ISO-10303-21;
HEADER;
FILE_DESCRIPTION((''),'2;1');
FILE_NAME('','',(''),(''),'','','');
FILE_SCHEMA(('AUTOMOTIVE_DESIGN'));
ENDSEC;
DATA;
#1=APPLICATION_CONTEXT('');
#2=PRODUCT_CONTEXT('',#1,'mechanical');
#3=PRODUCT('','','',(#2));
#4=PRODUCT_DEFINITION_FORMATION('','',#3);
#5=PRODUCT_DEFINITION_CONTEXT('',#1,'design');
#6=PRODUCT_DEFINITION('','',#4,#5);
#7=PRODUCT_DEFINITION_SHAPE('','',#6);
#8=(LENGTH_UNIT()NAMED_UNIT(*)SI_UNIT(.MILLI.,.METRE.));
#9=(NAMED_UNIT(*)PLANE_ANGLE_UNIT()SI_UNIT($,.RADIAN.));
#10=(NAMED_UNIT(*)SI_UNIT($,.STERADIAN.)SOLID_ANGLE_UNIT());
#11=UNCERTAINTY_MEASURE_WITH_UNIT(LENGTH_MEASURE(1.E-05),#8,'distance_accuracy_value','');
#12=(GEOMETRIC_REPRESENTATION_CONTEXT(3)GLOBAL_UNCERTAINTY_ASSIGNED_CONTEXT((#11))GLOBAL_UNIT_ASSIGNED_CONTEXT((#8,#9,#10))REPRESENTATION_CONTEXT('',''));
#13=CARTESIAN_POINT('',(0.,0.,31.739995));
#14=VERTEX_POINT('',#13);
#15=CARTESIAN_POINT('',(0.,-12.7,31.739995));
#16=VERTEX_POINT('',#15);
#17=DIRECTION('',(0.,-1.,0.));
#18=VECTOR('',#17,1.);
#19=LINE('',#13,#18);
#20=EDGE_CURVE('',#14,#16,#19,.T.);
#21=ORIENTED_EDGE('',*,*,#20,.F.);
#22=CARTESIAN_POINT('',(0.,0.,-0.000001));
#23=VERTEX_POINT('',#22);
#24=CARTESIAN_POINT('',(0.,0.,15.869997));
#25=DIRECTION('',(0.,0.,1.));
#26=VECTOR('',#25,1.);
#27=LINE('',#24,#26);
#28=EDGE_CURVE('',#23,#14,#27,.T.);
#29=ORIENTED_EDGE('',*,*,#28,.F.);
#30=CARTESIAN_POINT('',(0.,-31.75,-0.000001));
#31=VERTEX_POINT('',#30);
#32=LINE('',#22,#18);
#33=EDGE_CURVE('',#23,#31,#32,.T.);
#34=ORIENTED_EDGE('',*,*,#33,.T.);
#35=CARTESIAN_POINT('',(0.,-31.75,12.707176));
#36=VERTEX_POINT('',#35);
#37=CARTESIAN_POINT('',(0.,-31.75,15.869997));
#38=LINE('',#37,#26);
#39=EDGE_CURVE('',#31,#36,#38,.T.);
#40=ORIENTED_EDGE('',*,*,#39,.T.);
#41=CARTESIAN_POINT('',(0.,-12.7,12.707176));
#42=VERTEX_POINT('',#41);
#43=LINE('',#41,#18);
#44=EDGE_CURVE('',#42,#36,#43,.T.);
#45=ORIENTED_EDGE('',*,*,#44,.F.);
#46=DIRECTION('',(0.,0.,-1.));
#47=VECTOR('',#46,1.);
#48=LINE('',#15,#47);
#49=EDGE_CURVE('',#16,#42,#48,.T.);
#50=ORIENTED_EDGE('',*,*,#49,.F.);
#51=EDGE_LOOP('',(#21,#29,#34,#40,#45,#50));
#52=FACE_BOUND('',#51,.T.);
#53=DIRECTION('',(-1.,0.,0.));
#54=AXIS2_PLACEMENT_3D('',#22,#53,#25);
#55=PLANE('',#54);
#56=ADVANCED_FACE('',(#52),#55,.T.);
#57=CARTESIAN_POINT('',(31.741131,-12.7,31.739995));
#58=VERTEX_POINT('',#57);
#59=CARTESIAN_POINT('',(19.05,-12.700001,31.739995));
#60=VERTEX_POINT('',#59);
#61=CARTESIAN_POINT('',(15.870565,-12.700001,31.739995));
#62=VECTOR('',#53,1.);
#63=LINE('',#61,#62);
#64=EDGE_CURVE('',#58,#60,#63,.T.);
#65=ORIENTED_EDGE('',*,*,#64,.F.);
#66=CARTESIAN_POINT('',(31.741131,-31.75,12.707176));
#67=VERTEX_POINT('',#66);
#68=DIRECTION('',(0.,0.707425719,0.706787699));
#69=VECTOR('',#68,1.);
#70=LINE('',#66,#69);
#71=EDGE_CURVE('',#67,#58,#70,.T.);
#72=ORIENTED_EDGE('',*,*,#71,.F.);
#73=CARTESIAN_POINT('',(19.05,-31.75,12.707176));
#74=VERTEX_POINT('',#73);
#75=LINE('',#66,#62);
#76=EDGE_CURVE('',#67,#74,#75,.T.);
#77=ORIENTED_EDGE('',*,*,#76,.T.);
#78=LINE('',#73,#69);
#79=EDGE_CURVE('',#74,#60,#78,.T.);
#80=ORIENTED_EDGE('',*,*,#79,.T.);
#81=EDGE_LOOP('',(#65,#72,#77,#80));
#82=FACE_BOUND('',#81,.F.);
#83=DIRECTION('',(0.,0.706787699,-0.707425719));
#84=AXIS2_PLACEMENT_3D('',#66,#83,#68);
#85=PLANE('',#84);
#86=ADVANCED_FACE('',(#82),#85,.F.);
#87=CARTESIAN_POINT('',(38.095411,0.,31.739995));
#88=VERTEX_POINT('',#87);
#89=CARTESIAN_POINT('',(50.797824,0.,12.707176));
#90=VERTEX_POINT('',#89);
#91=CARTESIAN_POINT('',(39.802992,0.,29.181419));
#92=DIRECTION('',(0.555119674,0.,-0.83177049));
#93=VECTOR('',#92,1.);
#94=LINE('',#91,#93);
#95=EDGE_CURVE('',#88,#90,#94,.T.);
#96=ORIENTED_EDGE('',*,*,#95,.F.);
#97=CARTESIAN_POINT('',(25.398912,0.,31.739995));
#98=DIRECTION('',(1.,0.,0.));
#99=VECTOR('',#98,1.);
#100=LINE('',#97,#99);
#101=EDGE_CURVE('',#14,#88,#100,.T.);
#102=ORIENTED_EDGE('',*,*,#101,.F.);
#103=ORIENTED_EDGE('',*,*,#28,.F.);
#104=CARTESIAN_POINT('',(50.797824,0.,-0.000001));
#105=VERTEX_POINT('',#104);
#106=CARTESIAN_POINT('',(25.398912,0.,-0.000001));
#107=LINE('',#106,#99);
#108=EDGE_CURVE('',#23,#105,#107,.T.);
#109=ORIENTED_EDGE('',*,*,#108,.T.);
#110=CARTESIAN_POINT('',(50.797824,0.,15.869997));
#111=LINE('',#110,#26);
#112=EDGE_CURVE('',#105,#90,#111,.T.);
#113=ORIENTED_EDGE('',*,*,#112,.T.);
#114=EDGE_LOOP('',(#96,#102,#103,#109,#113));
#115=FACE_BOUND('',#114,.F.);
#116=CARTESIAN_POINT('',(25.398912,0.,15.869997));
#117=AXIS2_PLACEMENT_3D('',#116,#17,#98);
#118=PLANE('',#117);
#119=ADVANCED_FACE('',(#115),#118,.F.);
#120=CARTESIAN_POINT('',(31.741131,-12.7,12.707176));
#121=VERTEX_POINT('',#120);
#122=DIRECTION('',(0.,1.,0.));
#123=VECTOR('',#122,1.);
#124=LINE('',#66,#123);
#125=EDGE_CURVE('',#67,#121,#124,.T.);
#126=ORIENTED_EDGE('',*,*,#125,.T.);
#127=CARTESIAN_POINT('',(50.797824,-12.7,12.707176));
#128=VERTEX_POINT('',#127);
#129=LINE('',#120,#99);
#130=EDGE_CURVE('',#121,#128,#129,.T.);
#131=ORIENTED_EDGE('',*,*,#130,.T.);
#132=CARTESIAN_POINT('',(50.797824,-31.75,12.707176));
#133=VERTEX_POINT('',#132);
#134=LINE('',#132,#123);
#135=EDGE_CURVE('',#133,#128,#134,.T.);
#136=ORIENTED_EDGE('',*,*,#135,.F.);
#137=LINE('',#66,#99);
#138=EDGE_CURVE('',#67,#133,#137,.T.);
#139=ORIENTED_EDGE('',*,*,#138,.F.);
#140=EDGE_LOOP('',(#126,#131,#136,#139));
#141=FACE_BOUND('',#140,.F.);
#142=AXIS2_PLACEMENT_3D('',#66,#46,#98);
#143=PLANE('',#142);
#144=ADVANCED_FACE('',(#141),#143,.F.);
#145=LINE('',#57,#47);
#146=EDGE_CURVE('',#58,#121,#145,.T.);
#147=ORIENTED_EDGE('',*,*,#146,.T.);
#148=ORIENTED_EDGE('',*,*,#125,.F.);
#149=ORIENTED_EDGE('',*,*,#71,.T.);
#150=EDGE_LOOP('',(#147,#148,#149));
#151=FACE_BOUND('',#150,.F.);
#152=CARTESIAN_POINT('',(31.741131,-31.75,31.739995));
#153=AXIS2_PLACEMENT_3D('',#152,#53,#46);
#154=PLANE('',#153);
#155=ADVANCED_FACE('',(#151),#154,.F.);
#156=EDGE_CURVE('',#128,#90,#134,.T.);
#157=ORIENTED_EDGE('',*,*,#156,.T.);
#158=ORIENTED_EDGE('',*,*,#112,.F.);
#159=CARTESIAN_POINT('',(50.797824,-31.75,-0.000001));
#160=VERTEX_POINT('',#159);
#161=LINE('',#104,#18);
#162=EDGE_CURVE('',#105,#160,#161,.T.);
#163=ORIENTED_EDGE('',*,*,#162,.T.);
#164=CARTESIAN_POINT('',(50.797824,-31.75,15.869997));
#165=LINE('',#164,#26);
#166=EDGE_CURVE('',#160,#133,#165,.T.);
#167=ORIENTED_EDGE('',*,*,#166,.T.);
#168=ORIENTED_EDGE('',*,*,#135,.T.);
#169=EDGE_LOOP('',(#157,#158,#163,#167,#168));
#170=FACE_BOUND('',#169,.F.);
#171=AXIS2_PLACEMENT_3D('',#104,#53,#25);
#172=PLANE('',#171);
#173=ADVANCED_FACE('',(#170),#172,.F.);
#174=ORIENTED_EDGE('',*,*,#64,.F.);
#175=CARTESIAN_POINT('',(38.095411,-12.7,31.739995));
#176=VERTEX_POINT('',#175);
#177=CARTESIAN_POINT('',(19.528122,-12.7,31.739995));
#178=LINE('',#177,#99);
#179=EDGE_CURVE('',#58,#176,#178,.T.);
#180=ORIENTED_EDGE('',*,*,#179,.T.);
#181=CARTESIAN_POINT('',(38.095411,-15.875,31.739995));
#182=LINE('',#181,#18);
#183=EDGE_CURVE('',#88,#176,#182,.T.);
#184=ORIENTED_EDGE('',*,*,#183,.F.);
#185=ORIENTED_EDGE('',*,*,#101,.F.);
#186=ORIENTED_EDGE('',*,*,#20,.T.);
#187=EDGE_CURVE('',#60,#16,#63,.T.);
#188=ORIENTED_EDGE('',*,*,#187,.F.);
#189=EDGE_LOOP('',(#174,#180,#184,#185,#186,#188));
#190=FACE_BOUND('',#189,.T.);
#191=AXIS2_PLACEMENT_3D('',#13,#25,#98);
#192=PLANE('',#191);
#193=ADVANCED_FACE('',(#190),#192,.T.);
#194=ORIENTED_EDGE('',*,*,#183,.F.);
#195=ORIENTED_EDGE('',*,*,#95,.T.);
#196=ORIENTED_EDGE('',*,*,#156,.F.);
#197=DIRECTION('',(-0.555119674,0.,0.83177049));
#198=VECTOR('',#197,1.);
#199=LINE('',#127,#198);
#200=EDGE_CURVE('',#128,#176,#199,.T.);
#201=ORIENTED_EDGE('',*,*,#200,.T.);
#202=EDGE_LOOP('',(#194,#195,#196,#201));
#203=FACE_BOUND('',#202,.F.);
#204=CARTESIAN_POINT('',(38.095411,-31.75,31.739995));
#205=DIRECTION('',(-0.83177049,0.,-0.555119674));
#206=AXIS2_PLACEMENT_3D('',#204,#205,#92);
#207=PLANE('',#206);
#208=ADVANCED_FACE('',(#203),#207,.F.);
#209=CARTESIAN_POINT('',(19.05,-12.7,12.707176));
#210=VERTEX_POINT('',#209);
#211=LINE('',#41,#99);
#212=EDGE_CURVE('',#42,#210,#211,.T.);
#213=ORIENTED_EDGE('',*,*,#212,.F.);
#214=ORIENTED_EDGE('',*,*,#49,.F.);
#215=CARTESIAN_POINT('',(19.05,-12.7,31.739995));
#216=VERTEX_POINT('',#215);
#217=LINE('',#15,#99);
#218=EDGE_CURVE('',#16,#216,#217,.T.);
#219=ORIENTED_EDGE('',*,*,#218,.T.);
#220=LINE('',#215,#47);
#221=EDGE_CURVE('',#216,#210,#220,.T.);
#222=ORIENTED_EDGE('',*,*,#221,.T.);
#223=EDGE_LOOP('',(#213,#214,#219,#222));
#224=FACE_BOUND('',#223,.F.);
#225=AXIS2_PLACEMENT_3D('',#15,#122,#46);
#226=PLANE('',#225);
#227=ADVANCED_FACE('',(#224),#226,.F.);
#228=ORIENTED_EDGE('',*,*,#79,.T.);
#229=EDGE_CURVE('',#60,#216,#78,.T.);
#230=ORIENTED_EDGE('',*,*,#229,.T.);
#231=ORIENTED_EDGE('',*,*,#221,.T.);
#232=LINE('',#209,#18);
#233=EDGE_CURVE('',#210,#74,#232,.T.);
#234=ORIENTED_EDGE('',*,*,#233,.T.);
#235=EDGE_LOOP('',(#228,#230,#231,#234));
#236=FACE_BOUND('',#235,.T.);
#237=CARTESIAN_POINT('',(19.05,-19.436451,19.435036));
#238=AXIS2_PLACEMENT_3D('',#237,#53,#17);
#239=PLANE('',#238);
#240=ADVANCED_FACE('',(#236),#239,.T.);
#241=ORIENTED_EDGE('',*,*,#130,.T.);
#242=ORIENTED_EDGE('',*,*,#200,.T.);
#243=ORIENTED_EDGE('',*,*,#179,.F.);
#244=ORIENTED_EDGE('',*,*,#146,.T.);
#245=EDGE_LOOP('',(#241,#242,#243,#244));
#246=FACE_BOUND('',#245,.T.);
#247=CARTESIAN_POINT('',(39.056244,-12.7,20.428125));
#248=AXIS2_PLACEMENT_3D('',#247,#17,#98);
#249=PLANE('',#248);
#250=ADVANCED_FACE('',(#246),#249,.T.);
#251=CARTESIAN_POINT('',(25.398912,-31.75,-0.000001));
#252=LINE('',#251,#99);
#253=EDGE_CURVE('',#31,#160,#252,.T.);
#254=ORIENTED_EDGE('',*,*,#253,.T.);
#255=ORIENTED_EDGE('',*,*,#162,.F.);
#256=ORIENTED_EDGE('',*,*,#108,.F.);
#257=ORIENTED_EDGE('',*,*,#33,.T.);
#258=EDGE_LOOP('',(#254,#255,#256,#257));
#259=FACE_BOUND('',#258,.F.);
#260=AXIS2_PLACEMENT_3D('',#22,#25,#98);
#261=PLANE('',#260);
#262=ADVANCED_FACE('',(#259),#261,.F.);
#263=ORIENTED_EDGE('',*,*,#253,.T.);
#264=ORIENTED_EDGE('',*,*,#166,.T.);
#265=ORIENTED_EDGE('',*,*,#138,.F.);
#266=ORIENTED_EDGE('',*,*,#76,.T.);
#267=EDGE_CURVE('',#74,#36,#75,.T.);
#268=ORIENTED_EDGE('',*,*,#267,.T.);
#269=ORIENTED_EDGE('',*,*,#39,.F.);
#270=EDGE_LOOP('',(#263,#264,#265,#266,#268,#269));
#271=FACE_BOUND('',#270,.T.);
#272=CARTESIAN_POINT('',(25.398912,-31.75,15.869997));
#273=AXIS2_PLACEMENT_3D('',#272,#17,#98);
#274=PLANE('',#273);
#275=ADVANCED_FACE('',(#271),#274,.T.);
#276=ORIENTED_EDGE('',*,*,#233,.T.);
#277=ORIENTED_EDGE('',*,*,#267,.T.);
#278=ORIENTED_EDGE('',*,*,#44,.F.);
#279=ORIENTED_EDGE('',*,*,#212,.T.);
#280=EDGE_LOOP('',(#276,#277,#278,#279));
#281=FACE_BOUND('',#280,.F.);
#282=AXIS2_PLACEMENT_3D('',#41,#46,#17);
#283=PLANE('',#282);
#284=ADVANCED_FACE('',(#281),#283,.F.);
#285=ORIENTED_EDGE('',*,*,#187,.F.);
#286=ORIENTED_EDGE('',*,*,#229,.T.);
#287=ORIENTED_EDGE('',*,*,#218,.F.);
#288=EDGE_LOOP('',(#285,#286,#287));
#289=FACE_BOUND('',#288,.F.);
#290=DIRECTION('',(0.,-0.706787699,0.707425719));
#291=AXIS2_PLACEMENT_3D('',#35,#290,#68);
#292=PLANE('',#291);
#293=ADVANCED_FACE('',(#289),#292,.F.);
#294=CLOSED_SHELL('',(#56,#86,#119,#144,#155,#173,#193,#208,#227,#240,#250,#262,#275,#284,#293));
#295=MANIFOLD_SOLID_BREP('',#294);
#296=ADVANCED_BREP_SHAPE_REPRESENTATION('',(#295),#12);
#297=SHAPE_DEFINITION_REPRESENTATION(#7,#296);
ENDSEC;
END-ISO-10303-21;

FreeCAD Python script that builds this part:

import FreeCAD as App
import Part
import Sketcher
from FreeCAD import Vector
Q = App.Units.Quantity


def add_polygon(sketch, points):
    """Adds a closed chain of lines whose ends are joined by coincident constraints."""
    first, n = sketch.GeometryCount, len(points)
    for a, b in zip(points, points[1:] + points[:1]):
        sketch.addGeometry(Part.LineSegment(App.Vector(*a, 0), App.Vector(*b, 0)), False)
    for i in range(n):
        sketch.addConstraint(Sketcher.Constraint("Coincident", first + i, 2, first + (i + 1) % n, 1))

doc = App.newDocument("Part")
params = doc.addObject("Spreadsheet::Sheet", "Params")
for row, (alias, value) in enumerate([
    ("pad1_length", "1.25 in"),
    ("pocket2_length", "0.75 in"),
    ("sketch4_width", "0.75 in"),
    ("sketch5_width", "0.75 in"),
    ("pocket4_length", "0.75 in"),
], start=1):
    params.set(f"A{row}", alias)
    params.set(f"B{row}", "=" + value)
    params.setAlias(f"B{row}", alias)

body = doc.addObject("PartDesign::Body", "Body")

# Sketch on XZ plane
sketch1 = body.newObject("Sketcher::SketchObject", "Sketch")
sketch1.AttachmentSupport = (doc.getObject("XZ_Plane"), [""])
sketch1.MapMode = "FlatFace"
add_polygon(sketch1, [(0, 32), (0, 0), (51, 0), (51, 32)])  # lines 0-3
sketch1.addConstraint([
    Sketcher.Constraint("Vertical", 0),
    Sketcher.Constraint("Horizontal", 1),
    Sketcher.Constraint("Vertical", 2),
    Sketcher.Constraint("Horizontal", 3),
    Sketcher.Constraint("Coincident", 0, 2, -1, 1),
    Sketcher.Constraint("DistanceX", 1, 1, 1, 2, Q("50.797824 mm")),
    Sketcher.Constraint("DistanceY", 0, 2, 0, 1, Q("31.739995 mm")),
])
pad1 = body.newObject("PartDesign::Pad", "Pad")
pad1.Profile = sketch1
pad1.setExpression("Length", "Params.pad1_length")

# Sketch on XZ plane
sketch2 = body.newObject("Sketcher::SketchObject", "Sketch001")
sketch2.AttachmentSupport = (doc.getObject("XZ_Plane"), [""])
sketch2.MapMode = "FlatFace"
sketch2.AttachmentOffset = App.Placement(Vector(0, 0, 1.25 * 25.4), App.Rotation())
add_polygon(sketch2, [(51, 32), (38, 32), (51, 13)])  # lines 0-2
sketch2.addConstraint([
    Sketcher.Constraint("Horizontal", 0),
    Sketcher.Constraint("Vertical", 2),
    Sketcher.Constraint("DistanceY", 2, 1, 2, 2, Q("19.032819 mm")),
    Sketcher.Constraint("DistanceX", 0, 2, 0, 1, Q("12.702413 mm")),
    Sketcher.Constraint("DistanceX", -1, 1, 0, 2, Q("38.095411 mm")),
    Sketcher.Constraint("DistanceY", -1, 1, 0, 2, Q("31.739995 mm")),
])
pocket1 = body.newObject("PartDesign::Pocket", "Pocket")
pocket1.Profile = sketch2
pocket1.Type = "ThroughAll"

# Sketch on XZ plane
sketch3 = body.newObject("Sketcher::SketchObject", "Sketch002")
sketch3.AttachmentSupport = (doc.getObject("XZ_Plane"), [""])
sketch3.MapMode = "FlatFace"
sketch3.AttachmentOffset = App.Placement(Vector(0, 0, 1.25 * 25.4), App.Rotation())
add_polygon(sketch3, [(32, 13), (51, 13), (38, 32), (32, 32)])  # lines 0-3
sketch3.addConstraint([
    Sketcher.Constraint("Horizontal", 0),
    Sketcher.Constraint("Horizontal", 2),
    Sketcher.Constraint("Vertical", 3),
    Sketcher.Constraint("DistanceX", 2, 2, 2, 1, Q("6.35428 mm")),
    Sketcher.Constraint("DistanceY", 3, 2, 3, 1, Q("19.032819 mm")),
    Sketcher.Constraint("DistanceX", 0, 1, 0, 2, Q("19.056693 mm")),
    Sketcher.Constraint("DistanceX", -1, 1, 1, 2, Q("38.095411 mm")),
    Sketcher.Constraint("DistanceY", -1, 1, 0, 2, Q("12.707176 mm")),
])
pocket2 = body.newObject("PartDesign::Pocket", "Pocket001")
pocket2.Profile = sketch3
pocket2.setExpression("Length", "Params.pocket2_length")

# Sketch on YZ plane
sketch4 = body.newObject("Sketcher::SketchObject", "Sketch003")
sketch4.AttachmentSupport = (doc.getObject("YZ_Plane"), [""])
sketch4.MapMode = "FlatFace"
sketch4.AttachmentOffset = App.Placement(Vector(0, 0, 31.741131), App.Rotation())
add_polygon(sketch4, [(-32, 13), (-13, 32), (-32, 32)])  # lines 0-2
sketch4.addConstraint([
    Sketcher.Constraint("Horizontal", 1),
    Sketcher.Constraint("Vertical", 2),
    Sketcher.Constraint("DistanceX", 1, 2, 1, 1, Q("0.75 in")),
    Sketcher.Constraint("DistanceX", 0, 2, -1, 1, Q("0.5 in")),
    Sketcher.Constraint("DistanceY", 2, 2, 2, 1, Q("19.032819 mm")),
    Sketcher.Constraint("DistanceY", -1, 1, 0, 2, Q("31.739995 mm")),
])
sketch4.setExpression("Constraints[5]", "Params.sketch4_width")
pocket3 = body.newObject("PartDesign::Pocket", "Pocket002")
pocket3.Profile = sketch4
pocket3.Type = "ThroughAll"

# Sketch on YZ plane
sketch5 = body.newObject("Sketcher::SketchObject", "Sketch004")
sketch5.AttachmentSupport = (doc.getObject("YZ_Plane"), [""])
sketch5.MapMode = "FlatFace"
add_polygon(sketch5, [(-13, 13), (-32, 13), (-13, 32)])  # lines 0-2
sketch5.addConstraint([
    Sketcher.Constraint("Horizontal", 0),
    Sketcher.Constraint("Vertical", 2),
    Sketcher.Constraint("DistanceX", 0, 2, 0, 1, Q("0.75 in")),
    Sketcher.Constraint("DistanceX", 1, 2, -1, 1, Q("0.5 in")),
    Sketcher.Constraint("DistanceY", 2, 2, 2, 1, Q("19.032819 mm")),
    Sketcher.Constraint("DistanceY", -1, 1, 0, 2, Q("12.707176 mm")),
])
sketch5.setExpression("Constraints[5]", "Params.sketch5_width")
pocket4 = body.newObject("PartDesign::Pocket", "Pocket003")
pocket4.Profile = sketch5
pocket4.setExpression("Length", "Params.pocket4_length")
pocket4.Reversed = True

doc.recompute()
